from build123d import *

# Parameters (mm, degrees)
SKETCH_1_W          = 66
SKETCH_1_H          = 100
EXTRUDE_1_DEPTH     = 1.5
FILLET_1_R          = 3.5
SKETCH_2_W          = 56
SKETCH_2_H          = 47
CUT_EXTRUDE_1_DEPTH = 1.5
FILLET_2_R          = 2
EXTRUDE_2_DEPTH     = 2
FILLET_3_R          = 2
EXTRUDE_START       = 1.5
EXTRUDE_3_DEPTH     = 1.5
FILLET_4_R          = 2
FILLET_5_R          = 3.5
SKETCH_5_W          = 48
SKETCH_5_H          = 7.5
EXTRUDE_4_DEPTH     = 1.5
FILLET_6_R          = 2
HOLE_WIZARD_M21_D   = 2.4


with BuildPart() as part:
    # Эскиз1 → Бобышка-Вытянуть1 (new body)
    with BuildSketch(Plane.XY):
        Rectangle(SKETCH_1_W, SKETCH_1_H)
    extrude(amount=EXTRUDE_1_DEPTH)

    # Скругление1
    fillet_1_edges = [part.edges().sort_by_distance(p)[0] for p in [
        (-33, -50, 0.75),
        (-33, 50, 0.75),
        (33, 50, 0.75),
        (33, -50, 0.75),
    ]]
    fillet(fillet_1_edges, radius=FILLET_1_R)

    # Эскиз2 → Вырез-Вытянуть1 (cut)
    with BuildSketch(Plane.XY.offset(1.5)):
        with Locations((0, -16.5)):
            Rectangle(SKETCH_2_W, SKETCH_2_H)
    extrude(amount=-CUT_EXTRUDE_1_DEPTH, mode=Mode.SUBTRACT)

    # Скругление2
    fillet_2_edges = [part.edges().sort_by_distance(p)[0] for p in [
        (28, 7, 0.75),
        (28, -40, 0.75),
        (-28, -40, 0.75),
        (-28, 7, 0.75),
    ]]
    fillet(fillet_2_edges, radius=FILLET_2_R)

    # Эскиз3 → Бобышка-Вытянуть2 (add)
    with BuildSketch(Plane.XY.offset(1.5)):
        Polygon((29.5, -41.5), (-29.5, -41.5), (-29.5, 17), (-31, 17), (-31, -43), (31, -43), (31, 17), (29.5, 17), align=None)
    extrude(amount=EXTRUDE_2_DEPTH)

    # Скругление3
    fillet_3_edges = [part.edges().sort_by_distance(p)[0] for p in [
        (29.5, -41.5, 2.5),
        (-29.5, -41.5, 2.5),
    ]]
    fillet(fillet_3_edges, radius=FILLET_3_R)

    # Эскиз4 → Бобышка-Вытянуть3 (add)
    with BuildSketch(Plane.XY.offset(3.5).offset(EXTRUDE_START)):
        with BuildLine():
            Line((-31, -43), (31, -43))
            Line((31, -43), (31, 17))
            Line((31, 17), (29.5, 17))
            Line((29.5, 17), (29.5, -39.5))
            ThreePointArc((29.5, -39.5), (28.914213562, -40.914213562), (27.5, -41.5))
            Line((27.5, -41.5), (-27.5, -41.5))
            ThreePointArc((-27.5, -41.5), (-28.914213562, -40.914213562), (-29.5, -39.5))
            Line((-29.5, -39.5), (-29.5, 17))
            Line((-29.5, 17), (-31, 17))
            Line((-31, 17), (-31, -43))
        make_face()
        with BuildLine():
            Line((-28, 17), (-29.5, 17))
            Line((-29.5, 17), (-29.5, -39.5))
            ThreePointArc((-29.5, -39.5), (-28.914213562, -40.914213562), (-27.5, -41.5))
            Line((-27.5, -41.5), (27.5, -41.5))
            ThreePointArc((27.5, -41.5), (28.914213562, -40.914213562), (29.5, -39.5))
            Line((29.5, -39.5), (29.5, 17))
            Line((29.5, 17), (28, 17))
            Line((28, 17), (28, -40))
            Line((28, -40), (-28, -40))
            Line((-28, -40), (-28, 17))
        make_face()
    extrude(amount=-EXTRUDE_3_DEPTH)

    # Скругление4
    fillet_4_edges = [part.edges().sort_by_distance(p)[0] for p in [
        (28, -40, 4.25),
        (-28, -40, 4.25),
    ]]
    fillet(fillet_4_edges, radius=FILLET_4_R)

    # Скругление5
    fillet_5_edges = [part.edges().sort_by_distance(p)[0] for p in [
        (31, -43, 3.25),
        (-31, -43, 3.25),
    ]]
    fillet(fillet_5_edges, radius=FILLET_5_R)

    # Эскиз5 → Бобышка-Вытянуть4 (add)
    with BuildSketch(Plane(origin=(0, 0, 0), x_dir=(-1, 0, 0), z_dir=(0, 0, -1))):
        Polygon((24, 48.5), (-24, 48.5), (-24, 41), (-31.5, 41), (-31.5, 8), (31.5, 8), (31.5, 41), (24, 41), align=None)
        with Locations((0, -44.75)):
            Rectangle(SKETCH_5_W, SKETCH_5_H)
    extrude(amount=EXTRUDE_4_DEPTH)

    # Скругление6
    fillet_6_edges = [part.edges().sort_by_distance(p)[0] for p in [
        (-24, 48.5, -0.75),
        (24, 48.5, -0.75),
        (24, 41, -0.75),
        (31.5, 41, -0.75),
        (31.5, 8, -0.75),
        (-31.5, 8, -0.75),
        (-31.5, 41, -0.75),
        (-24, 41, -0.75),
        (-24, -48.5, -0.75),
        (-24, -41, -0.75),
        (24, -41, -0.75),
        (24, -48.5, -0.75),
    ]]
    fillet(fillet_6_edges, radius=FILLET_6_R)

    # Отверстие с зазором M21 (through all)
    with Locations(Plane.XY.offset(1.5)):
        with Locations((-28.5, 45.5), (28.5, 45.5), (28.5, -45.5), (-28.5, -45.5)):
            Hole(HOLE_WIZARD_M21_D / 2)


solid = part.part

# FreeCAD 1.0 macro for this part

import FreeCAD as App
import Part
import Sketcher

V = App.Vector
Q = App.Units.Quantity


def edges_at(feature, points):
    """Names of the edges that pass closest to the given points."""
    edges = feature.Shape.Edges
    near = lambda p: min(range(len(edges)), key=lambda i: edges[i].distToShape(Part.Vertex(*p))[0])
    return sorted({f"Edge{near(p) + 1}" for p in points})


def add_polygon(sketch, points):
    """Adds a closed chain of lines whose ends are joined by coincident constraints."""
    first, n = sketch.GeometryCount, len(points)
    for a, b in zip(points, points[1:] + points[:1]):
        sketch.addGeometry(Part.LineSegment(App.Vector(*a, 0), App.Vector(*b, 0)), False)
    for i in range(n):
        sketch.addConstraint(Sketcher.Constraint("Coincident", first + i, 2, first + (i + 1) % n, 1))

doc = App.newDocument("Part")
body = doc.addObject("PartDesign::Body", "Body")

# Sketch on XY plane
sketch1 = doc.addObject("Sketcher::SketchObject", "Sketch")
body.addObject(sketch1)
sketch1.AttachmentSupport = (doc.XY_Plane, [""])
sketch1.MapMode = "FlatFace"
add_polygon(sketch1, [(-33, 50), (-33, -50), (33, -50), (33, 50)])  # lines 0-3
sketch1.addConstraint([
    Sketcher.Constraint("Vertical", 0),
    Sketcher.Constraint("Horizontal", 1),
    Sketcher.Constraint("Vertical", 2),
    Sketcher.Constraint("Horizontal", 3),
    Sketcher.Constraint("Symmetric", 0, 2, 2, 2, -1, 1),
    Sketcher.Constraint("DistanceX", 1, 1, 1, 2, Q("66 mm")),
    Sketcher.Constraint("DistanceY", 0, 2, 0, 1, Q("100 mm")),
])
pad1 = doc.addObject("PartDesign::Pad", "Pad")
body.addObject(pad1)
pad1.Profile = sketch1
pad1.Length = 1.5
doc.recompute()

fillet = doc.addObject("PartDesign::Fillet", "Fillet")
body.addObject(fillet)
fillet.Base = (pad1, edges_at(pad1, [
    (-33, -50, 0.75),
    (-33, 50, 0.75),
    (33, 50, 0.75),
    (33, -50, 0.75),
]))
fillet.Radius = 3.5

# Sketch on XY plane
sketch2 = doc.addObject("Sketcher::SketchObject", "Sketch001")
body.addObject(sketch2)
sketch2.AttachmentSupport = (doc.XY_Plane, [""])
sketch2.MapMode = "FlatFace"
sketch2.AttachmentOffset = App.Placement(V(0, 0, 1.5), App.Rotation())
add_polygon(sketch2, [(-28, 7), (-28, -40), (28, -40), (28, 7)])  # lines 0-3
sketch2.addConstraint([
    Sketcher.Constraint("Vertical", 0),
    Sketcher.Constraint("Horizontal", 1),
    Sketcher.Constraint("Vertical", 2),
    Sketcher.Constraint("Horizontal", 3),
    Sketcher.Constraint("DistanceX", 1, 1, 1, 2, Q("56 mm")),
    Sketcher.Constraint("DistanceY", 0, 2, 0, 1, Q("47 mm")),
    Sketcher.Constraint("DistanceX", 0, 2, -1, 1, Q("28 mm")),
    Sketcher.Constraint("DistanceY", 0, 2, -1, 1, Q("40 mm")),
])
pocket1 = doc.addObject("PartDesign::Pocket", "Pocket")
body.addObject(pocket1)
pocket1.Profile = sketch2
pocket1.Length = 1.5
doc.recompute()

fillet2 = doc.addObject("PartDesign::Fillet", "Fillet001")
body.addObject(fillet2)
fillet2.Base = (pocket1, edges_at(pocket1, [
    (28, 7, 0.75),
    (28, -40, 0.75),
    (-28, -40, 0.75),
    (-28, 7, 0.75),
]))
fillet2.Radius = 2

# Sketch on XY plane
sketch3 = doc.addObject("Sketcher::SketchObject", "Sketch002")
body.addObject(sketch3)
sketch3.AttachmentSupport = (doc.XY_Plane, [""])
sketch3.MapMode = "FlatFace"
sketch3.AttachmentOffset = App.Placement(V(0, 0, 1.5), App.Rotation())
add_polygon(sketch3, [(29.5, -41.5), (-29.5, -41.5), (-29.5, 17), (-31, 17), (-31, -43), (31, -43), (31, 17), (29.5, 17)])  # lines 0-7
sketch3.addConstraint([
    Sketcher.Constraint("Horizontal", 0),
    Sketcher.Constraint("Vertical", 1),
    Sketcher.Constraint("Horizontal", 2),
    Sketcher.Constraint("Vertical", 3),
    Sketcher.Constraint("Horizontal", 4),
    Sketcher.Constraint("Vertical", 5),
    Sketcher.Constraint("Horizontal", 6),
    Sketcher.Constraint("Vertical", 7),
    Sketcher.Constraint("Symmetric", 2, 2, 5, 2, -2),
    Sketcher.Constraint("Equal", 2, 6),
    Sketcher.Constraint("DistanceX", 0, 2, 0, 1, Q("59 mm")),
    Sketcher.Constraint("DistanceX", 4, 1, 4, 2, Q("62 mm")),
    Sketcher.Constraint("DistanceY", 3, 2, 3, 1, Q("60 mm")),
    Sketcher.Constraint("DistanceY", 1, 1, 1, 2, Q("58.5 mm")),
    Sketcher.Constraint("DistanceY", -1, 1, 1, 2, Q("17 mm")),
])
pad2 = doc.addObject("PartDesign::Pad", "Pad001")
body.addObject(pad2)
pad2.Profile = sketch3
pad2.Length = 2
doc.recompute()

fillet3 = doc.addObject("PartDesign::Fillet", "Fillet002")
body.addObject(fillet3)
fillet3.Base = (pad2, edges_at(pad2, [(29.5, -41.5, 2.5), (-29.5, -41.5, 2.5)]))
fillet3.Radius = 2

# Sketch on XY plane
sketch4 = doc.addObject("Sketcher::SketchObject", "Sketch003")
body.addObject(sketch4)
sketch4.AttachmentSupport = (doc.XY_Plane, [""])
sketch4.MapMode = "FlatFace"
sketch4.AttachmentOffset = App.Placement(V(0, 0, 5), App.Rotation())
add_polygon(sketch4, [(-31, -43), (31, -43), (31, 17), (28, 17), (28, -40), (-28, -40), (-28, 17), (-31, 17)])  # lines 0-7
sketch4.addConstraint([
    Sketcher.Constraint("Horizontal", 0),
    Sketcher.Constraint("Vertical", 1),
    Sketcher.Constraint("Horizontal", 2),
    Sketcher.Constraint("Vertical", 3),
    Sketcher.Constraint("Horizontal", 4),
    Sketcher.Constraint("Vertical", 5),
    Sketcher.Constraint("Horizontal", 6),
    Sketcher.Constraint("Vertical", 7),
    Sketcher.Constraint("Symmetric", 2, 2, 5, 2, -2),
    Sketcher.Constraint("Equal", 2, 6),
    Sketcher.Constraint("DistanceX", 0, 1, 0, 2, Q("62 mm")),
    Sketcher.Constraint("DistanceX", 2, 2, 2, 1, Q("3 mm")),
    Sketcher.Constraint("DistanceY", 1, 1, 1, 2, Q("60 mm")),
    Sketcher.Constraint("DistanceY", 3, 2, 3, 1, Q("57 mm")),
    Sketcher.Constraint("DistanceY", 0, 2, -1, 1, Q("43 mm")),
])
pad3 = doc.addObject("PartDesign::Pad", "Pad002")
body.addObject(pad3)
pad3.Profile = sketch4
pad3.Length = 1.5
pad3.Reversed = True
doc.recompute()

fillet4 = doc.addObject("PartDesign::Fillet", "Fillet003")
body.addObject(fillet4)
fillet4.Base = (pad3, edges_at(pad3, [(28, -40, 4.25), (-28, -40, 4.25)]))
fillet4.Radius = 2
doc.recompute()

fillet5 = doc.addObject("PartDesign::Fillet", "Fillet004")
body.addObject(fillet5)
fillet5.Base = (fillet4, edges_at(fillet4, [(31, -43, 3.25), (-31, -43, 3.25)]))
fillet5.Radius = 3.5

# Sketch on XY plane
sketch5 = doc.addObject("Sketcher::SketchObject", "Sketch004")
body.addObject(sketch5)
sketch5.AttachmentSupport = (doc.XY_Plane, [""])
sketch5.MapMode = "FlatFace"
add_polygon(sketch5, [(-24, 48), (24, 48), (24, 41), (32, 41), (32, 8), (-32, 8), (-32, 41), (-24, 41)])  # lines 0-7
add_polygon(sketch5, [(24, -41), (24, -48), (-24, -48), (-24, -41)])  # lines 8-11
sketch5.addConstraint([
    Sketcher.Constraint("Horizontal", 0),
    Sketcher.Constraint("Vertical", 1),
    Sketcher.Constraint("Horizontal", 2),
    Sketcher.Constraint("Vertical", 3),
    Sketcher.Constraint("Horizontal", 4),
    Sketcher.Constraint("Vertical", 5),
    Sketcher.Constraint("Horizontal", 6),
    Sketcher.Constraint("Vertical", 7),
    Sketcher.Constraint("Vertical", 8),
    Sketcher.Constraint("Horizontal", 9),
    Sketcher.Constraint("Vertical", 10),
    Sketcher.Constraint("Horizontal", 11),
    Sketcher.Constraint("Symmetric", 7, 2, 8, 2, -1, 1),
    Sketcher.Constraint("Symmetric", 1, 2, 10, 2, -1, 1),
    Sketcher.Constraint("Symmetric", 2, 2, 5, 2, -2),
    Sketcher.Constraint("Vertical", 1, 2, 8, 2),
    Sketcher.Constraint("Equal", 6, 1),
    Sketcher.Constraint("DistanceX", 0, 1, 0, 2, Q("48 mm")),
    Sketcher.Constraint("DistanceX", 4, 2, 4, 1, Q("63 mm")),
    Sketcher.Constraint("DistanceY", 3, 2, 3, 1, Q("33 mm")),
    Sketcher.Constraint("DistanceY", -1, 1, 1, 2, Q("41 mm")),
])
pad4 = doc.addObject("PartDesign::Pad", "Pad003")
body.addObject(pad4)
pad4.Profile = sketch5
pad4.Length = 1.5
pad4.Reversed = True
doc.recompute()

fillet6 = doc.addObject("PartDesign::Fillet", "Fillet005")
body.addObject(fillet6)
fillet6.Base = (pad4, edges_at(pad4, [
    (-24, 48.5, -0.75),
    (24, 48.5, -0.75),
    (24, 41, -0.75),
    (31.5, 41, -0.75),
    (31.5, 8, -0.75),
    (-31.5, 8, -0.75),
    (-31.5, 41, -0.75),
    (-24, 41, -0.75),
    (-24, -48.5, -0.75),
    (-24, -41, -0.75),
    (24, -41, -0.75),
    (24, -48.5, -0.75),
]))
fillet6.Radius = 2

# Sketch on XY plane
sketch6 = doc.addObject("Sketcher::SketchObject", "Sketch005")
body.addObject(sketch6)
sketch6.AttachmentSupport = (doc.XY_Plane, [""])
sketch6.MapMode = "FlatFace"
sketch6.AttachmentOffset = App.Placement(V(0, 0, 1.5), App.Rotation())
sketch6.addGeometry([
    Part.Circle(V(-28.5, 45.5, 0), V(0, 0, 1), 1.2),
    Part.Circle(V(28.5, 45.5, 0), V(0, 0, 1), 1.2),
    Part.Circle(V(28.5, -45.5, 0), V(0, 0, 1), 1.2),
    Part.Circle(V(-28.5, -45.5, 0), V(0, 0, 1), 1.2),
], False)
sketch6.addConstraint([
    Sketcher.Constraint("Equal", 0, 1),
    Sketcher.Constraint("Equal", 1, 2),
    Sketcher.Constraint("Equal", 2, 3),
    Sketcher.Constraint("Symmetric", 0, 3, 2, 3, -1, 1),
    Sketcher.Constraint("Symmetric", 1, 3, 3, 3, -1, 1),
    Sketcher.Constraint("Symmetric", 0, 3, 1, 3, -2),
    Sketcher.Constraint("Diameter", 0, Q("2.4 mm")),
    Sketcher.Constraint("DistanceX", 0, 3, 1, 3, Q("57 mm")),
    Sketcher.Constraint("DistanceY", 2, 3, 1, 3, Q("91 mm")),
])
doc.recompute()
hole = doc.addObject("PartDesign::Hole", "Hole")
body.addObject(hole)
hole.Profile = sketch6
hole.ThreadType = "None"
hole.Diameter = 2.4
hole.DepthType = "ThroughAll"

doc.recompute()
